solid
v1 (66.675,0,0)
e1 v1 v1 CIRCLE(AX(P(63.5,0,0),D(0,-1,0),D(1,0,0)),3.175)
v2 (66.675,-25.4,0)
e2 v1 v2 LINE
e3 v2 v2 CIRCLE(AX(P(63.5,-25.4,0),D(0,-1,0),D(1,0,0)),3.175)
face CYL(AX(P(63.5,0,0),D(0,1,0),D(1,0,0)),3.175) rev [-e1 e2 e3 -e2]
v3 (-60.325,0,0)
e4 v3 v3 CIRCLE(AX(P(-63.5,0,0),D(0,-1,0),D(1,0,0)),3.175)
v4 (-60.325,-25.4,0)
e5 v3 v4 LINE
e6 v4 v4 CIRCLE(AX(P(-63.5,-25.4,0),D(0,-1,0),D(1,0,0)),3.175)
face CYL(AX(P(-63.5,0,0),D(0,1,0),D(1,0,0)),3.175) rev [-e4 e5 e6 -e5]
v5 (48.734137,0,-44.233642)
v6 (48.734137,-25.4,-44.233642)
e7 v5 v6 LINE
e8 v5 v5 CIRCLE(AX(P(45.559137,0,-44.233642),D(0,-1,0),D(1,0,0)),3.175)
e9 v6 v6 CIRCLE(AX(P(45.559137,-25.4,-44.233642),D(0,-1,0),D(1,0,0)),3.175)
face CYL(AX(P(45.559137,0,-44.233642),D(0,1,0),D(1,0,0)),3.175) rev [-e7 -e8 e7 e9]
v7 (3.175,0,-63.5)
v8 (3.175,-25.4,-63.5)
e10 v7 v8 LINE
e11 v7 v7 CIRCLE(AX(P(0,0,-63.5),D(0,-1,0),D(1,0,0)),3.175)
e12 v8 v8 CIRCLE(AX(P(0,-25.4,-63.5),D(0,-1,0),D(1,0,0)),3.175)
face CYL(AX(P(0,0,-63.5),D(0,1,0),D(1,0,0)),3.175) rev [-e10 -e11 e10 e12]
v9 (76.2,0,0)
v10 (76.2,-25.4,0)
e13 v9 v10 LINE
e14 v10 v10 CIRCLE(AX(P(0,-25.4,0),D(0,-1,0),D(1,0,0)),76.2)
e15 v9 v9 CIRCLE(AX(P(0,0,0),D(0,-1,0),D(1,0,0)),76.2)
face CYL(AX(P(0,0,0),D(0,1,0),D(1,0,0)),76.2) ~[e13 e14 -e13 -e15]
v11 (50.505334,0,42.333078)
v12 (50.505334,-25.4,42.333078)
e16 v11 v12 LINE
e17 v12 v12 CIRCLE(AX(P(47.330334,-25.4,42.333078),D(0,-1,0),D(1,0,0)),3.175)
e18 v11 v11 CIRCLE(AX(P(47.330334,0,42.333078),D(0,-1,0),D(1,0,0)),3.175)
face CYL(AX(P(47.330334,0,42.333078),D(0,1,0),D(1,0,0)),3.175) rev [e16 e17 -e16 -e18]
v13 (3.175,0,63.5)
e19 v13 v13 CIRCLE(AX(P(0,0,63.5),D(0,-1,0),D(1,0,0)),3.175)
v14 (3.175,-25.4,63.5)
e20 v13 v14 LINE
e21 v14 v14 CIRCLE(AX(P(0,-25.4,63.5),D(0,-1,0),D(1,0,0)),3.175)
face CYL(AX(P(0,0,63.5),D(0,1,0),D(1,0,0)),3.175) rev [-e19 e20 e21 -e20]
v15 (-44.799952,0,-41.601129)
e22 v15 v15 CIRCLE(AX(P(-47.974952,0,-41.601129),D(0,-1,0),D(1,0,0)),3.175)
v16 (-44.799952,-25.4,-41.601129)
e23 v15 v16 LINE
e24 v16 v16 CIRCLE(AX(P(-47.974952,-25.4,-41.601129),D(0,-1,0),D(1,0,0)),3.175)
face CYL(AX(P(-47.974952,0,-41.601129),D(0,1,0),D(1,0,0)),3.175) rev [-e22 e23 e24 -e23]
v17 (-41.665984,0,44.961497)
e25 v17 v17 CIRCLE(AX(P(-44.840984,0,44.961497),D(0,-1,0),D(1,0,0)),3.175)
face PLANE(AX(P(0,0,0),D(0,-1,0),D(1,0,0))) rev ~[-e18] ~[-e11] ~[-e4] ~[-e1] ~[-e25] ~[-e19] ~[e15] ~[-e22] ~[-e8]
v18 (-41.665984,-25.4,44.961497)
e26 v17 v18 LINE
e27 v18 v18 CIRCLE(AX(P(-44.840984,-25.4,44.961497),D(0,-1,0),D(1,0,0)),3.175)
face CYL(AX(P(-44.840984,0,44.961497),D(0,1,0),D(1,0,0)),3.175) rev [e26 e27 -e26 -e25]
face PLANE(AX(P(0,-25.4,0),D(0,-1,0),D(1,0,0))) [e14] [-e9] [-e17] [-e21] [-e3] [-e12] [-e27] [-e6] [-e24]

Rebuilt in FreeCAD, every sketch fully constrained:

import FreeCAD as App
import Part
import Sketcher

V = App.Vector
Q = App.Units.Quantity

doc = App.newDocument("Part")
body = doc.addObject("PartDesign::Body", "Body")

# Sketch on XZ plane
sketch1 = body.newObject("Sketcher::SketchObject", "Sketch")
sketch1.AttachmentSupport = (doc.getObject("XZ_Plane"), [""])
sketch1.MapMode = "FlatFace"
sketch1.addGeometry(Part.Circle(V(0, 0, 0), V(0, 0, 1), 76.2), False)
sketch1.addGeometry(Part.Circle(V(-48, -41.6, 0), V(0, 0, 1), 3.2), False)
sketch1.addGeometry(Part.Circle(V(0, -63.5, 0), V(0, 0, 1), 3.2), False)
sketch1.addGeometry(Part.Circle(V(45.6, -44.2, 0), V(0, 0, 1), 3.2), False)
sketch1.addGeometry(Part.Circle(V(-63.5, 0, 0), V(0, 0, 1), 3.2), False)
sketch1.addGeometry(Part.Circle(V(-44.8, 45, 0), V(0, 0, 1), 3.2), False)
sketch1.addGeometry(Part.Circle(V(63.5, 0, 0), V(0, 0, 1), 3.2), False)
sketch1.addGeometry(Part.Circle(V(0, 63.5, 0), V(0, 0, 1), 3.2), False)
sketch1.addGeometry(Part.Circle(V(47.3, 42.3, 0), V(0, 0, 1), 3.2), False)
sketch1.addConstraint(Sketcher.Constraint("Coincident", 0, 3, -1, 1))
sketch1.addConstraint(Sketcher.Constraint("Equal", 1, 2))
sketch1.addConstraint(Sketcher.Constraint("Equal", 2, 3))
sketch1.addConstraint(Sketcher.Constraint("Equal", 3, 4))
sketch1.addConstraint(Sketcher.Constraint("Equal", 4, 5))
sketch1.addConstraint(Sketcher.Constraint("Equal", 5, 6))
sketch1.addConstraint(Sketcher.Constraint("Equal", 6, 7))
sketch1.addConstraint(Sketcher.Constraint("Equal", 7, 8))
sketch1.addConstraint(Sketcher.Constraint("Symmetric", 4, 3, 6, 3, -1, 1))
sketch1.addConstraint(Sketcher.Constraint("Symmetric", 2, 3, 7, 3, -1, 1))
sketch1.addConstraint(Sketcher.Constraint("PointOnObject", 2, 3, -2))
sketch1.addConstraint(Sketcher.Constraint("PointOnObject", 4, 3, -1))
sketch1.addConstraint(Sketcher.Constraint("Diameter", 0, Q("6 in")))
sketch1.addConstraint(Sketcher.Constraint("Diameter", 1, Q("0.25 in")))
sketch1.addConstraint(Sketcher.Constraint("DistanceY", 2, 3, -1, 1, Q("2.5 in")))
sketch1.addConstraint(Sketcher.Constraint("DistanceX", 4, 3, -1, 1, Q("2.5 in")))
sketch1.addConstraint(Sketcher.Constraint("DistanceY", 1, 3, -1, 1, 41.601129))
sketch1.addConstraint(Sketcher.Constraint("DistanceX", 1, 3, 3, 3, 93.534089))
sketch1.addConstraint(Sketcher.Constraint("DistanceX", 1, 3, 5, 3, 3.133968))
sketch1.addConstraint(Sketcher.Constraint("DistanceY", 3, 3, 5, 3, 89.195139))
sketch1.addConstraint(Sketcher.Constraint("DistanceX", 1, 3, 6, 3, 111.474952))
sketch1.addConstraint(Sketcher.Constraint("DistanceY", 8, 3, 7, 3, 21.166922))
sketch1.addConstraint(Sketcher.Constraint("DistanceY", 3, 3, 8, 3, 86.56672))
sketch1.addConstraint(Sketcher.Constraint("DistanceX", 5, 3, 8, 3, 92.171318))
pad1 = body.newObject("PartDesign::Pad", "Pad")
pad1.Profile = sketch1
pad1.Length = Q("1 in")

doc.recompute()
